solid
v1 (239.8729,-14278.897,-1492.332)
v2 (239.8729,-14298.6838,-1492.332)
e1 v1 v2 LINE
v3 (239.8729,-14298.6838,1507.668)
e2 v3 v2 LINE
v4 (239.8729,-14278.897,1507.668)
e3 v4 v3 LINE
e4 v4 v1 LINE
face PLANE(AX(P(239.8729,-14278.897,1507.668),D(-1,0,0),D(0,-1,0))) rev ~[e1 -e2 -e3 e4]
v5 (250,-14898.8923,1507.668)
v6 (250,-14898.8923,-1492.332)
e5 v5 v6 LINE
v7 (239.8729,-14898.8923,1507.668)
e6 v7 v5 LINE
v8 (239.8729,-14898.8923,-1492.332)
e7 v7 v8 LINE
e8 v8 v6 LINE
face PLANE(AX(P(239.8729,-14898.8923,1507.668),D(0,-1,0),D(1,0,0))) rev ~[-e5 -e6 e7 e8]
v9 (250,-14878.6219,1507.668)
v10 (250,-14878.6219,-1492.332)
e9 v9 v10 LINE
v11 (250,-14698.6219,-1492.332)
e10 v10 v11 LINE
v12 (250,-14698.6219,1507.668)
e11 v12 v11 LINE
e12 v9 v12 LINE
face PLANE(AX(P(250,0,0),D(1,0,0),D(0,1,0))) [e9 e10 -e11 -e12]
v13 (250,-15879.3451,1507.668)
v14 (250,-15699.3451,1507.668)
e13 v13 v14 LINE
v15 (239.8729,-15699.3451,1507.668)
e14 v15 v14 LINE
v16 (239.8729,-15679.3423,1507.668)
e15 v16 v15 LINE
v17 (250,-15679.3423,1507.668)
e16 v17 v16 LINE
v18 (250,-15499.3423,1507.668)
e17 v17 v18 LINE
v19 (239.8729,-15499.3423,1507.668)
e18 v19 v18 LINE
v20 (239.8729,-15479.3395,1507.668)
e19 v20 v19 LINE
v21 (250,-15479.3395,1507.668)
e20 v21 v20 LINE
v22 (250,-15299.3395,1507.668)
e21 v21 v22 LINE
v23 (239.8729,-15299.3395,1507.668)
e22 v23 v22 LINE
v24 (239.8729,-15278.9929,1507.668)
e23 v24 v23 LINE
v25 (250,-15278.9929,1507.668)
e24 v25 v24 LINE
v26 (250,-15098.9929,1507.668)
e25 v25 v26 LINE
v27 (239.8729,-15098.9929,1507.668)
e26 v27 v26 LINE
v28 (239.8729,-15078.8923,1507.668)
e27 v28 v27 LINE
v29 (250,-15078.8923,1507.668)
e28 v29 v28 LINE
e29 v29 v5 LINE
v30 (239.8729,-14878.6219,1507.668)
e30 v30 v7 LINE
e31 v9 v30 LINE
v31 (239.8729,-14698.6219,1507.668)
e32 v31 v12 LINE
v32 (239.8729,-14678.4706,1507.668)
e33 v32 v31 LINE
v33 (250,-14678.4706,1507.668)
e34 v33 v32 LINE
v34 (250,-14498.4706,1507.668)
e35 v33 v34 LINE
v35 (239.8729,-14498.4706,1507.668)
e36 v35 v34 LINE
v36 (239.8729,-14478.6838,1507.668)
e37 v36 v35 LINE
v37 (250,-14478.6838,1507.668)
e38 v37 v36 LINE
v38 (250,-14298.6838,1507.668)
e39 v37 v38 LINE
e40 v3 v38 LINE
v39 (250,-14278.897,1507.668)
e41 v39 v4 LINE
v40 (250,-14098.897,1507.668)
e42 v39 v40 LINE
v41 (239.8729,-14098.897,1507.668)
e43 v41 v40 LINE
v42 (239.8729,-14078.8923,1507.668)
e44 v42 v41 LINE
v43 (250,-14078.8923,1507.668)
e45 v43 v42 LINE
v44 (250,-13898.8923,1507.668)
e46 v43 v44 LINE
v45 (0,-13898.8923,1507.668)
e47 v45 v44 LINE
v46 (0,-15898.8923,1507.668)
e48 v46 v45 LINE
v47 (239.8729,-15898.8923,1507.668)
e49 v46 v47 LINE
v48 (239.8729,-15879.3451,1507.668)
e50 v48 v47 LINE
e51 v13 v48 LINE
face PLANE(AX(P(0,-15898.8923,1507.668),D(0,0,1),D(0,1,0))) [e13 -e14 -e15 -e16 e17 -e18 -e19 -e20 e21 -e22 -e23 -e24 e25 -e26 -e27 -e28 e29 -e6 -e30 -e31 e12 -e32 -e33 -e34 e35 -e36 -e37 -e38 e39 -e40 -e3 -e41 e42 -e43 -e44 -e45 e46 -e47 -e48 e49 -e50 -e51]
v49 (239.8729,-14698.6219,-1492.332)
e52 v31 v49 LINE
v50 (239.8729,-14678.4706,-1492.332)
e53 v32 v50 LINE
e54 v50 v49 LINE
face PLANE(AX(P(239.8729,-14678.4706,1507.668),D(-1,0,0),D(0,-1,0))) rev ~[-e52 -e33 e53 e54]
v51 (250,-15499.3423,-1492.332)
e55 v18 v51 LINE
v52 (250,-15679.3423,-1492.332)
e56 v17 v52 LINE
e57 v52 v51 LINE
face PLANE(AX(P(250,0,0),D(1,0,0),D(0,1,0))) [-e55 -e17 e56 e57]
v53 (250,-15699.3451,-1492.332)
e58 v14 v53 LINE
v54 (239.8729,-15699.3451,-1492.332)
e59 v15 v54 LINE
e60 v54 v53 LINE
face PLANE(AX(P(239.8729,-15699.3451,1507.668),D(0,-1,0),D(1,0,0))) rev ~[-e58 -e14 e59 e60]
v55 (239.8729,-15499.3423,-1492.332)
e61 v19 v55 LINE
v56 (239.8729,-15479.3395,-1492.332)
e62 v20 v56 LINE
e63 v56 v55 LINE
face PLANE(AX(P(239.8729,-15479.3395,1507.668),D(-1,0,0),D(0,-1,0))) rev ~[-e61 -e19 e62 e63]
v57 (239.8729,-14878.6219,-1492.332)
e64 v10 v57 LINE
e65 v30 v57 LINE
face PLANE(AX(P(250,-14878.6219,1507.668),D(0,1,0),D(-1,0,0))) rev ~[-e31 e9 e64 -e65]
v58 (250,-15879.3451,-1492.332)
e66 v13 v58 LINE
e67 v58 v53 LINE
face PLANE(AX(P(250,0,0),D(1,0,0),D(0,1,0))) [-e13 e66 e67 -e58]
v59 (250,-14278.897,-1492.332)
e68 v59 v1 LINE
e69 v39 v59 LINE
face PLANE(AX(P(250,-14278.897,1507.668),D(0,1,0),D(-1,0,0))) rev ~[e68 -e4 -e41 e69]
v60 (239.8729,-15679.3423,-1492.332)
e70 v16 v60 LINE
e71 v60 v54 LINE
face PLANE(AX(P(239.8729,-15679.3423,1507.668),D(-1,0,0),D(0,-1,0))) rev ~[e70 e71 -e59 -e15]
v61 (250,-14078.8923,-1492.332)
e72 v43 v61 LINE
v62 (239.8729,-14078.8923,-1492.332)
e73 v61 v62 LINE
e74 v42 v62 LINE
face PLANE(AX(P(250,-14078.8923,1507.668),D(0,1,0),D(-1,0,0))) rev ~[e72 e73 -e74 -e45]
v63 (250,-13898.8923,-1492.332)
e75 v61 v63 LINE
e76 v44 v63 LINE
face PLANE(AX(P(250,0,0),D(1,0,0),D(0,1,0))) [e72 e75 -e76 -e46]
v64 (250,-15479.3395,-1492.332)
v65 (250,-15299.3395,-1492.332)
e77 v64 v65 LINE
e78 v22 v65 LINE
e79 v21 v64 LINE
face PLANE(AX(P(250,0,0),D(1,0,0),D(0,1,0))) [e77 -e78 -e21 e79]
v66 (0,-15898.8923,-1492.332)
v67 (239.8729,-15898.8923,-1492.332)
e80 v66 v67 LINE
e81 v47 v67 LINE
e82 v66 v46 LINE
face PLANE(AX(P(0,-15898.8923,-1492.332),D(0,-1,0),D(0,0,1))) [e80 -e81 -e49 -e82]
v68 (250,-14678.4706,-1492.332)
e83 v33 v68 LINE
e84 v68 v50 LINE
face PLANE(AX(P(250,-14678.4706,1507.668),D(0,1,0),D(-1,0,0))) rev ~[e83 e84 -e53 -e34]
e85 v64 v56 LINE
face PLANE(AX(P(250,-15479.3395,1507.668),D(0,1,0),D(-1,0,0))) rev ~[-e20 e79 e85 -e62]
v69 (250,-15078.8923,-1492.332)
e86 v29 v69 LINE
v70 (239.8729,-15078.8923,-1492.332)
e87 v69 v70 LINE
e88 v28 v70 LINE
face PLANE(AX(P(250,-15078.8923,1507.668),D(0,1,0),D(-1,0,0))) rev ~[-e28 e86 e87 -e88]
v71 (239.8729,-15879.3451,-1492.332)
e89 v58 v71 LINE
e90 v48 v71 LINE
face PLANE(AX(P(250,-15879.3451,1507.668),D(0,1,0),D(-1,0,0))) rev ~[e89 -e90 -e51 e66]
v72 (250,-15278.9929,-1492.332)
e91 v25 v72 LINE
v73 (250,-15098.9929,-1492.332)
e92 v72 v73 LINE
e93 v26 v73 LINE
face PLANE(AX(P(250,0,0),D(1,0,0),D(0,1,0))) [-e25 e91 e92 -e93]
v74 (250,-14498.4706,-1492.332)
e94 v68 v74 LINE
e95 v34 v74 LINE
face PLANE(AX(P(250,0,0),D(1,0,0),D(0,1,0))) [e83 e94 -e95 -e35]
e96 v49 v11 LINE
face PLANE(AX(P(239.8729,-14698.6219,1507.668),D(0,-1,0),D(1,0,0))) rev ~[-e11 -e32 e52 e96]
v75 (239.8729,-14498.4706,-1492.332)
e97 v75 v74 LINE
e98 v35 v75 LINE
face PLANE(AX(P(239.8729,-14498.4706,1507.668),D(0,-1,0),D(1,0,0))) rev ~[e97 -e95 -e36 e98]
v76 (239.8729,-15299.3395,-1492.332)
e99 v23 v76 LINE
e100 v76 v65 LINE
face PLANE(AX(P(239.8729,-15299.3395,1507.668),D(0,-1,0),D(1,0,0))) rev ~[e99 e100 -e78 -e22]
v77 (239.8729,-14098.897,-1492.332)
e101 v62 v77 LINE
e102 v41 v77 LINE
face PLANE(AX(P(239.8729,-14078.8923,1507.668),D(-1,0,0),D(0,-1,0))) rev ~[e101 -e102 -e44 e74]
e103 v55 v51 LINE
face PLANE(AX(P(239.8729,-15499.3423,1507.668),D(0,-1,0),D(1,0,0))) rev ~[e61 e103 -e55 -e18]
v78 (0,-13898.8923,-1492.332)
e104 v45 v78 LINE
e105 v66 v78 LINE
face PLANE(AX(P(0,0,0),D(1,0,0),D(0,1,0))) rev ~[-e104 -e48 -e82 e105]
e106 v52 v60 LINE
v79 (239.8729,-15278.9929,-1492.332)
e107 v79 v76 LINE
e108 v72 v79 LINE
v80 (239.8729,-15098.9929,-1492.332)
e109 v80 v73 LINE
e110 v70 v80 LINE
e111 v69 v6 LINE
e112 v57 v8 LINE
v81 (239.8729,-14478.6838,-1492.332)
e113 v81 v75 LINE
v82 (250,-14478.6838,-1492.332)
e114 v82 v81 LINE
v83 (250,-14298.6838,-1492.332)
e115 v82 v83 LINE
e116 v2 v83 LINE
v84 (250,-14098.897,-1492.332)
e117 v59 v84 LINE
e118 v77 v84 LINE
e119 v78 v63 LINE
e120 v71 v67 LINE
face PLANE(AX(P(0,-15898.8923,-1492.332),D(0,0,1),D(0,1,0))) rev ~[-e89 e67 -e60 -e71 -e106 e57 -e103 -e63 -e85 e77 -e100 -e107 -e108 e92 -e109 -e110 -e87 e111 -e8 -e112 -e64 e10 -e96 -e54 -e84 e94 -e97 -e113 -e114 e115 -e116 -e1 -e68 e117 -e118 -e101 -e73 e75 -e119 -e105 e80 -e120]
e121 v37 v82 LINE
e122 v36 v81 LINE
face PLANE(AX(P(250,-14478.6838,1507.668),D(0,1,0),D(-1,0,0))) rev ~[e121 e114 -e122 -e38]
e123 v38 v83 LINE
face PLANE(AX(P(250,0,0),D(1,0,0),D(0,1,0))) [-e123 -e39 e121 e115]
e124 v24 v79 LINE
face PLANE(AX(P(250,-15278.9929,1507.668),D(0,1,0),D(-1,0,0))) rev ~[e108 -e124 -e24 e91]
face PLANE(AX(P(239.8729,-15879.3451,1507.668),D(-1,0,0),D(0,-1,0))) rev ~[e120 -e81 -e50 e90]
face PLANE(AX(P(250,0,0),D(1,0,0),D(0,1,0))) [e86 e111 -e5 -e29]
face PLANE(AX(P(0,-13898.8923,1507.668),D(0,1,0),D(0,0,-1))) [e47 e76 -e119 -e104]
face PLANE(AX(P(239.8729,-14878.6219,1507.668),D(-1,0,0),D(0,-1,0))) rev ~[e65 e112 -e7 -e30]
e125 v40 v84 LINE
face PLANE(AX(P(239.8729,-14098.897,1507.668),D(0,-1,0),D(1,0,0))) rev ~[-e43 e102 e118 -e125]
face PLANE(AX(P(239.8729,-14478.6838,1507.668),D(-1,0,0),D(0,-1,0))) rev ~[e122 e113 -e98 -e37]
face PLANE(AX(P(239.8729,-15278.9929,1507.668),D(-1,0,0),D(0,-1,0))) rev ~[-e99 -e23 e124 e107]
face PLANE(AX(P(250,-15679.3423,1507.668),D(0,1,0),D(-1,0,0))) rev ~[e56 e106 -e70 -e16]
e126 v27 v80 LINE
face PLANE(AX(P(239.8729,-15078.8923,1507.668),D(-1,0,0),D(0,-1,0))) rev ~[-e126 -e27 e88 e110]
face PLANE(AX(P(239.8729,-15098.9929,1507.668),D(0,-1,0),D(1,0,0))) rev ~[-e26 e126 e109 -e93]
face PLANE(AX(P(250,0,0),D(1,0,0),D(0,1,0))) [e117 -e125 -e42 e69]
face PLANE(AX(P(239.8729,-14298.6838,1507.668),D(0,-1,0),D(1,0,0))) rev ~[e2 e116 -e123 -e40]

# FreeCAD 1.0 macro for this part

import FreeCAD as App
import Part
import Sketcher


def add_polygon(sketch, points):
    """Adds a closed chain of lines whose ends are joined by coincident constraints."""
    first, n = sketch.GeometryCount, len(points)
    for a, b in zip(points, points[1:] + points[:1]):
        sketch.addGeometry(Part.LineSegment(App.Vector(*a, 0), App.Vector(*b, 0)), False)
    for i in range(n):
        sketch.addConstraint(Sketcher.Constraint("Coincident", first + i, 2, first + (i + 1) % n, 1))

doc = App.newDocument("Part")
body = doc.addObject("PartDesign::Body", "Body")

# Sketch on YZ plane
sketch1 = doc.addObject("Sketcher::SketchObject", "Sketch")
body.addObject(sketch1)
sketch1.AttachmentSupport = (doc.YZ_Plane, [""])
sketch1.MapMode = "FlatFace"
add_polygon(sketch1, [(-15899, 1508), (-15899, -1492), (-13899, -1492), (-13899, 1508)])  # lines 0-3
sketch1.addConstraint([
    Sketcher.Constraint("Vertical", 0),
    Sketcher.Constraint("Horizontal", 1),
    Sketcher.Constraint("Vertical", 2),
    Sketcher.Constraint("Horizontal", 3),
    Sketcher.Constraint("DistanceX", 1, 1, 1, 2, 2000.0),
    Sketcher.Constraint("DistanceY", 0, 2, 0, 1, 3000.0),
    Sketcher.Constraint("DistanceY", 0, 2, -1, 1, 1492.332),
    Sketcher.Constraint("DistanceX", 0, 2, -1, 1, 15898.8923),
])
pad1 = doc.addObject("PartDesign::Pad", "Pad")
body.addObject(pad1)
pad1.Profile = sketch1
pad1.Length = 250

# Sketch on XY plane
sketch2 = doc.addObject("Sketcher::SketchObject", "Sketch001")
body.addObject(sketch2)
sketch2.AttachmentSupport = (doc.XY_Plane, [""])
sketch2.MapMode = "FlatFace"
sketch2.AttachmentOffset = App.Placement(App.Vector(0, 0, 1507.668), App.Rotation())
add_polygon(sketch2, [(250, -15899), (250, -15879), (240, -15879), (240, -15899)])  # lines 0-3
add_polygon(sketch2, [(250, -15699), (250, -15679), (240, -15679), (240, -15699)])  # lines 4-7
add_polygon(sketch2, [(250, -15499), (250, -15479), (240, -15479), (240, -15499)])  # lines 8-11
add_polygon(sketch2, [(250, -15299), (250, -15279), (240, -15279), (240, -15299)])  # lines 12-15
add_polygon(sketch2, [(250, -15099), (250, -15079), (240, -15079), (240, -15099)])  # lines 16-19
add_polygon(sketch2, [(250, -14899), (250, -14879), (240, -14879), (240, -14899)])  # lines 20-23
add_polygon(sketch2, [(250, -14699), (250, -14678), (240, -14678), (240, -14699)])  # lines 24-27
add_polygon(sketch2, [(250, -14498), (250, -14479), (240, -14479), (240, -14498)])  # lines 28-31
add_polygon(sketch2, [(250, -14299), (250, -14279), (240, -14279), (240, -14299)])  # lines 32-35
add_polygon(sketch2, [(250, -14099), (250, -14079), (240, -14079), (240, -14099)])  # lines 36-39
sketch2.addConstraint([
    Sketcher.Constraint("Vertical", 0),
    Sketcher.Constraint("Horizontal", 1),
    Sketcher.Constraint("Vertical", 2),
    Sketcher.Constraint("Horizontal", 3),
    Sketcher.Constraint("Vertical", 4),
    Sketcher.Constraint("Horizontal", 5),
    Sketcher.Constraint("Vertical", 6),
    Sketcher.Constraint("Horizontal", 7),
    Sketcher.Constraint("Vertical", 8),
    Sketcher.Constraint("Horizontal", 9),
    Sketcher.Constraint("Vertical", 10),
    Sketcher.Constraint("Horizontal", 11),
    Sketcher.Constraint("Vertical", 12),
    Sketcher.Constraint("Horizontal", 13),
    Sketcher.Constraint("Vertical", 14),
    Sketcher.Constraint("Horizontal", 15),
    Sketcher.Constraint("Vertical", 16),
    Sketcher.Constraint("Horizontal", 17),
    Sketcher.Constraint("Vertical", 18),
    Sketcher.Constraint("Horizontal", 19),
    Sketcher.Constraint("Vertical", 20),
    Sketcher.Constraint("Horizontal", 21),
    Sketcher.Constraint("Vertical", 22),
    Sketcher.Constraint("Horizontal", 23),
    Sketcher.Constraint("Vertical", 24),
    Sketcher.Constraint("Horizontal", 25),
    Sketcher.Constraint("Vertical", 26),
    Sketcher.Constraint("Horizontal", 27),
    Sketcher.Constraint("Vertical", 28),
    Sketcher.Constraint("Horizontal", 29),
    Sketcher.Constraint("Vertical", 30),
    Sketcher.Constraint("Horizontal", 31),
    Sketcher.Constraint("Vertical", 32),
    Sketcher.Constraint("Horizontal", 33),
    Sketcher.Constraint("Vertical", 34),
    Sketcher.Constraint("Horizontal", 35),
    Sketcher.Constraint("Vertical", 36),
    Sketcher.Constraint("Horizontal", 37),
    Sketcher.Constraint("Vertical", 38),
    Sketcher.Constraint("Horizontal", 39),
    Sketcher.Constraint("Vertical", 3, 2, 4, 2),
    Sketcher.Constraint("Vertical", 2, 2, 5, 2),
    Sketcher.Constraint("Vertical", 7, 2, 8, 2),
    Sketcher.Constraint("Vertical", 6, 2, 9, 2),
    Sketcher.Constraint("Vertical", 11, 2, 12, 2),
    Sketcher.Constraint("Vertical", 10, 2, 13, 2),
    Sketcher.Constraint("Vertical", 15, 2, 16, 2),
    Sketcher.Constraint("Vertical", 14, 2, 17, 2),
    Sketcher.Constraint("Vertical", 19, 2, 20, 2),
    Sketcher.Constraint("Vertical", 18, 2, 21, 2),
    Sketcher.Constraint("Vertical", 23, 2, 24, 2),
    Sketcher.Constraint("Vertical", 22, 2, 25, 2),
    Sketcher.Constraint("Vertical", 27, 2, 28, 2),
    Sketcher.Constraint("Vertical", 26, 2, 29, 2),
    Sketcher.Constraint("Vertical", 31, 2, 32, 2),
    Sketcher.Constraint("Vertical", 30, 2, 33, 2),
    Sketcher.Constraint("Vertical", 35, 2, 36, 2),
    Sketcher.Constraint("Vertical", 34, 2, 37, 2),
    Sketcher.Constraint("Equal", 6, 8),
    Sketcher.Constraint("Equal", 30, 32),
    Sketcher.Constraint("DistanceY", 1, 2, 6, 2, 180.0),
    Sketcher.Constraint("DistanceY", 5, 2, 10, 2, 180.0),
    Sketcher.Constraint("DistanceY", 9, 2, 14, 2, 180.0),
    Sketcher.Constraint("DistanceY", 13, 2, 18, 2, 180.0),
    Sketcher.Constraint("DistanceY", 17, 2, 22, 2, 180.0),
    Sketcher.Constraint("DistanceY", 21, 2, 26, 2, 180.0),
    Sketcher.Constraint("DistanceY", 25, 2, 30, 2, 180.0),
    Sketcher.Constraint("DistanceY", 29, 2, 34, 2, 180.0),
    Sketcher.Constraint("DistanceY", 33, 2, 38, 2, 180.0),
    Sketcher.Constraint("DistanceX", -1, 1, 0, 2, 250.0),
    Sketcher.Constraint("DistanceX", 1, 2, 1, 1, 10.127),
    Sketcher.Constraint("DistanceY", 3, 2, 4, 2, 219.55),
    Sketcher.Constraint("DistanceY", 0, 1, 0, 2, 19.5472),
    Sketcher.Constraint("DistanceY", 12, 1, 12, 2, 20.3466),
    Sketcher.Constraint("DistanceY", 16, 1, 16, 2, 20.1006),
    Sketcher.Constraint("DistanceY", 20, 1, 20, 2, 20.2704),
    Sketcher.Constraint("DistanceY", 24, 1, 24, 2, 20.1513),
    Sketcher.Constraint("DistanceY", 28, 1, 28, 2, 19.7868),
    Sketcher.Constraint("DistanceY", 36, 1, 36, 2, 20.0047),
    Sketcher.Constraint("DistanceY", 0, 2, -1, 1, 15879.345),
])
pocket1 = doc.addObject("PartDesign::Pocket", "Pocket")
body.addObject(pocket1)
pocket1.Profile = sketch2
pocket1.Type = "ThroughAll"

doc.recompute()
